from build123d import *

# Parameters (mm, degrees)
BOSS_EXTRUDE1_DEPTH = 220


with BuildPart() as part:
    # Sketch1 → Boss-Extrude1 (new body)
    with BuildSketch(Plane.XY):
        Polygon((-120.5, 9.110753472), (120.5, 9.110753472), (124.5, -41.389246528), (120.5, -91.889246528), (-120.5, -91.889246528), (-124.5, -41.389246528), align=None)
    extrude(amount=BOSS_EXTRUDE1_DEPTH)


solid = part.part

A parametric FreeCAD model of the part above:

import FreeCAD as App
import Part
import Sketcher

V = App.Vector

doc = App.newDocument("Part")
body = doc.addObject("PartDesign::Body", "Body")

# Sketch on XY plane
sketch1 = body.newObject("Sketcher::SketchObject", "Sketch")
sketch1.AttachmentSupport = (doc.getObject("XY_Plane"), [""])
sketch1.MapMode = "FlatFace"
sketch1.addGeometry([
    Part.LineSegment(V(120, 9, 0), V(-120, 9, 0)),  # 0
    Part.LineSegment(V(-120, 9, 0), V(-124, -41, 0)),  # 1
    Part.LineSegment(V(-124, -41, 0), V(-120, -92, 0)),  # 2
    Part.LineSegment(V(-120, -92, 0), V(120, -92, 0)),  # 3
    Part.LineSegment(V(120, -92, 0), V(124, -41, 0)),  # 4
    Part.LineSegment(V(124, -41, 0), V(120, 9, 0)),  # 5
], False)
sketch1.addConstraint([
    Sketcher.Constraint("Coincident", 0, 2, 1, 1),
    Sketcher.Constraint("Coincident", 1, 2, 2, 1),
    Sketcher.Constraint("Coincident", 2, 2, 3, 1),
    Sketcher.Constraint("Coincident", 3, 2, 4, 1),
    Sketcher.Constraint("Coincident", 4, 2, 5, 1),
    Sketcher.Constraint("Coincident", 5, 2, 0, 1),
    Sketcher.Constraint("Horizontal", 0),
    Sketcher.Constraint("Horizontal", 3),
    Sketcher.Constraint("Symmetric", 1, 2, 4, 2, -2),
    Sketcher.Constraint("Parallel", 1, 4),
    Sketcher.Constraint("Parallel", 2, 5),
    Sketcher.Constraint("Vertical", 0, 2, 2, 2),
    Sketcher.Constraint("Vertical", 3, 2, 5, 2),
    Sketcher.Constraint("DistanceX", 0, 2, 0, 1, 241.0),
    Sketcher.Constraint("DistanceX", 1, 2, 0, 2, 4.0),
    Sketcher.Constraint("DistanceY", 2, 2, 0, 2, 101.0),
    Sketcher.Constraint("DistanceY", -1, 1, 0, 2, 9.110753),
])
pad1 = body.newObject("PartDesign::Pad", "Pad")
pad1.Profile = sketch1
pad1.Length = 220

doc.recompute()
